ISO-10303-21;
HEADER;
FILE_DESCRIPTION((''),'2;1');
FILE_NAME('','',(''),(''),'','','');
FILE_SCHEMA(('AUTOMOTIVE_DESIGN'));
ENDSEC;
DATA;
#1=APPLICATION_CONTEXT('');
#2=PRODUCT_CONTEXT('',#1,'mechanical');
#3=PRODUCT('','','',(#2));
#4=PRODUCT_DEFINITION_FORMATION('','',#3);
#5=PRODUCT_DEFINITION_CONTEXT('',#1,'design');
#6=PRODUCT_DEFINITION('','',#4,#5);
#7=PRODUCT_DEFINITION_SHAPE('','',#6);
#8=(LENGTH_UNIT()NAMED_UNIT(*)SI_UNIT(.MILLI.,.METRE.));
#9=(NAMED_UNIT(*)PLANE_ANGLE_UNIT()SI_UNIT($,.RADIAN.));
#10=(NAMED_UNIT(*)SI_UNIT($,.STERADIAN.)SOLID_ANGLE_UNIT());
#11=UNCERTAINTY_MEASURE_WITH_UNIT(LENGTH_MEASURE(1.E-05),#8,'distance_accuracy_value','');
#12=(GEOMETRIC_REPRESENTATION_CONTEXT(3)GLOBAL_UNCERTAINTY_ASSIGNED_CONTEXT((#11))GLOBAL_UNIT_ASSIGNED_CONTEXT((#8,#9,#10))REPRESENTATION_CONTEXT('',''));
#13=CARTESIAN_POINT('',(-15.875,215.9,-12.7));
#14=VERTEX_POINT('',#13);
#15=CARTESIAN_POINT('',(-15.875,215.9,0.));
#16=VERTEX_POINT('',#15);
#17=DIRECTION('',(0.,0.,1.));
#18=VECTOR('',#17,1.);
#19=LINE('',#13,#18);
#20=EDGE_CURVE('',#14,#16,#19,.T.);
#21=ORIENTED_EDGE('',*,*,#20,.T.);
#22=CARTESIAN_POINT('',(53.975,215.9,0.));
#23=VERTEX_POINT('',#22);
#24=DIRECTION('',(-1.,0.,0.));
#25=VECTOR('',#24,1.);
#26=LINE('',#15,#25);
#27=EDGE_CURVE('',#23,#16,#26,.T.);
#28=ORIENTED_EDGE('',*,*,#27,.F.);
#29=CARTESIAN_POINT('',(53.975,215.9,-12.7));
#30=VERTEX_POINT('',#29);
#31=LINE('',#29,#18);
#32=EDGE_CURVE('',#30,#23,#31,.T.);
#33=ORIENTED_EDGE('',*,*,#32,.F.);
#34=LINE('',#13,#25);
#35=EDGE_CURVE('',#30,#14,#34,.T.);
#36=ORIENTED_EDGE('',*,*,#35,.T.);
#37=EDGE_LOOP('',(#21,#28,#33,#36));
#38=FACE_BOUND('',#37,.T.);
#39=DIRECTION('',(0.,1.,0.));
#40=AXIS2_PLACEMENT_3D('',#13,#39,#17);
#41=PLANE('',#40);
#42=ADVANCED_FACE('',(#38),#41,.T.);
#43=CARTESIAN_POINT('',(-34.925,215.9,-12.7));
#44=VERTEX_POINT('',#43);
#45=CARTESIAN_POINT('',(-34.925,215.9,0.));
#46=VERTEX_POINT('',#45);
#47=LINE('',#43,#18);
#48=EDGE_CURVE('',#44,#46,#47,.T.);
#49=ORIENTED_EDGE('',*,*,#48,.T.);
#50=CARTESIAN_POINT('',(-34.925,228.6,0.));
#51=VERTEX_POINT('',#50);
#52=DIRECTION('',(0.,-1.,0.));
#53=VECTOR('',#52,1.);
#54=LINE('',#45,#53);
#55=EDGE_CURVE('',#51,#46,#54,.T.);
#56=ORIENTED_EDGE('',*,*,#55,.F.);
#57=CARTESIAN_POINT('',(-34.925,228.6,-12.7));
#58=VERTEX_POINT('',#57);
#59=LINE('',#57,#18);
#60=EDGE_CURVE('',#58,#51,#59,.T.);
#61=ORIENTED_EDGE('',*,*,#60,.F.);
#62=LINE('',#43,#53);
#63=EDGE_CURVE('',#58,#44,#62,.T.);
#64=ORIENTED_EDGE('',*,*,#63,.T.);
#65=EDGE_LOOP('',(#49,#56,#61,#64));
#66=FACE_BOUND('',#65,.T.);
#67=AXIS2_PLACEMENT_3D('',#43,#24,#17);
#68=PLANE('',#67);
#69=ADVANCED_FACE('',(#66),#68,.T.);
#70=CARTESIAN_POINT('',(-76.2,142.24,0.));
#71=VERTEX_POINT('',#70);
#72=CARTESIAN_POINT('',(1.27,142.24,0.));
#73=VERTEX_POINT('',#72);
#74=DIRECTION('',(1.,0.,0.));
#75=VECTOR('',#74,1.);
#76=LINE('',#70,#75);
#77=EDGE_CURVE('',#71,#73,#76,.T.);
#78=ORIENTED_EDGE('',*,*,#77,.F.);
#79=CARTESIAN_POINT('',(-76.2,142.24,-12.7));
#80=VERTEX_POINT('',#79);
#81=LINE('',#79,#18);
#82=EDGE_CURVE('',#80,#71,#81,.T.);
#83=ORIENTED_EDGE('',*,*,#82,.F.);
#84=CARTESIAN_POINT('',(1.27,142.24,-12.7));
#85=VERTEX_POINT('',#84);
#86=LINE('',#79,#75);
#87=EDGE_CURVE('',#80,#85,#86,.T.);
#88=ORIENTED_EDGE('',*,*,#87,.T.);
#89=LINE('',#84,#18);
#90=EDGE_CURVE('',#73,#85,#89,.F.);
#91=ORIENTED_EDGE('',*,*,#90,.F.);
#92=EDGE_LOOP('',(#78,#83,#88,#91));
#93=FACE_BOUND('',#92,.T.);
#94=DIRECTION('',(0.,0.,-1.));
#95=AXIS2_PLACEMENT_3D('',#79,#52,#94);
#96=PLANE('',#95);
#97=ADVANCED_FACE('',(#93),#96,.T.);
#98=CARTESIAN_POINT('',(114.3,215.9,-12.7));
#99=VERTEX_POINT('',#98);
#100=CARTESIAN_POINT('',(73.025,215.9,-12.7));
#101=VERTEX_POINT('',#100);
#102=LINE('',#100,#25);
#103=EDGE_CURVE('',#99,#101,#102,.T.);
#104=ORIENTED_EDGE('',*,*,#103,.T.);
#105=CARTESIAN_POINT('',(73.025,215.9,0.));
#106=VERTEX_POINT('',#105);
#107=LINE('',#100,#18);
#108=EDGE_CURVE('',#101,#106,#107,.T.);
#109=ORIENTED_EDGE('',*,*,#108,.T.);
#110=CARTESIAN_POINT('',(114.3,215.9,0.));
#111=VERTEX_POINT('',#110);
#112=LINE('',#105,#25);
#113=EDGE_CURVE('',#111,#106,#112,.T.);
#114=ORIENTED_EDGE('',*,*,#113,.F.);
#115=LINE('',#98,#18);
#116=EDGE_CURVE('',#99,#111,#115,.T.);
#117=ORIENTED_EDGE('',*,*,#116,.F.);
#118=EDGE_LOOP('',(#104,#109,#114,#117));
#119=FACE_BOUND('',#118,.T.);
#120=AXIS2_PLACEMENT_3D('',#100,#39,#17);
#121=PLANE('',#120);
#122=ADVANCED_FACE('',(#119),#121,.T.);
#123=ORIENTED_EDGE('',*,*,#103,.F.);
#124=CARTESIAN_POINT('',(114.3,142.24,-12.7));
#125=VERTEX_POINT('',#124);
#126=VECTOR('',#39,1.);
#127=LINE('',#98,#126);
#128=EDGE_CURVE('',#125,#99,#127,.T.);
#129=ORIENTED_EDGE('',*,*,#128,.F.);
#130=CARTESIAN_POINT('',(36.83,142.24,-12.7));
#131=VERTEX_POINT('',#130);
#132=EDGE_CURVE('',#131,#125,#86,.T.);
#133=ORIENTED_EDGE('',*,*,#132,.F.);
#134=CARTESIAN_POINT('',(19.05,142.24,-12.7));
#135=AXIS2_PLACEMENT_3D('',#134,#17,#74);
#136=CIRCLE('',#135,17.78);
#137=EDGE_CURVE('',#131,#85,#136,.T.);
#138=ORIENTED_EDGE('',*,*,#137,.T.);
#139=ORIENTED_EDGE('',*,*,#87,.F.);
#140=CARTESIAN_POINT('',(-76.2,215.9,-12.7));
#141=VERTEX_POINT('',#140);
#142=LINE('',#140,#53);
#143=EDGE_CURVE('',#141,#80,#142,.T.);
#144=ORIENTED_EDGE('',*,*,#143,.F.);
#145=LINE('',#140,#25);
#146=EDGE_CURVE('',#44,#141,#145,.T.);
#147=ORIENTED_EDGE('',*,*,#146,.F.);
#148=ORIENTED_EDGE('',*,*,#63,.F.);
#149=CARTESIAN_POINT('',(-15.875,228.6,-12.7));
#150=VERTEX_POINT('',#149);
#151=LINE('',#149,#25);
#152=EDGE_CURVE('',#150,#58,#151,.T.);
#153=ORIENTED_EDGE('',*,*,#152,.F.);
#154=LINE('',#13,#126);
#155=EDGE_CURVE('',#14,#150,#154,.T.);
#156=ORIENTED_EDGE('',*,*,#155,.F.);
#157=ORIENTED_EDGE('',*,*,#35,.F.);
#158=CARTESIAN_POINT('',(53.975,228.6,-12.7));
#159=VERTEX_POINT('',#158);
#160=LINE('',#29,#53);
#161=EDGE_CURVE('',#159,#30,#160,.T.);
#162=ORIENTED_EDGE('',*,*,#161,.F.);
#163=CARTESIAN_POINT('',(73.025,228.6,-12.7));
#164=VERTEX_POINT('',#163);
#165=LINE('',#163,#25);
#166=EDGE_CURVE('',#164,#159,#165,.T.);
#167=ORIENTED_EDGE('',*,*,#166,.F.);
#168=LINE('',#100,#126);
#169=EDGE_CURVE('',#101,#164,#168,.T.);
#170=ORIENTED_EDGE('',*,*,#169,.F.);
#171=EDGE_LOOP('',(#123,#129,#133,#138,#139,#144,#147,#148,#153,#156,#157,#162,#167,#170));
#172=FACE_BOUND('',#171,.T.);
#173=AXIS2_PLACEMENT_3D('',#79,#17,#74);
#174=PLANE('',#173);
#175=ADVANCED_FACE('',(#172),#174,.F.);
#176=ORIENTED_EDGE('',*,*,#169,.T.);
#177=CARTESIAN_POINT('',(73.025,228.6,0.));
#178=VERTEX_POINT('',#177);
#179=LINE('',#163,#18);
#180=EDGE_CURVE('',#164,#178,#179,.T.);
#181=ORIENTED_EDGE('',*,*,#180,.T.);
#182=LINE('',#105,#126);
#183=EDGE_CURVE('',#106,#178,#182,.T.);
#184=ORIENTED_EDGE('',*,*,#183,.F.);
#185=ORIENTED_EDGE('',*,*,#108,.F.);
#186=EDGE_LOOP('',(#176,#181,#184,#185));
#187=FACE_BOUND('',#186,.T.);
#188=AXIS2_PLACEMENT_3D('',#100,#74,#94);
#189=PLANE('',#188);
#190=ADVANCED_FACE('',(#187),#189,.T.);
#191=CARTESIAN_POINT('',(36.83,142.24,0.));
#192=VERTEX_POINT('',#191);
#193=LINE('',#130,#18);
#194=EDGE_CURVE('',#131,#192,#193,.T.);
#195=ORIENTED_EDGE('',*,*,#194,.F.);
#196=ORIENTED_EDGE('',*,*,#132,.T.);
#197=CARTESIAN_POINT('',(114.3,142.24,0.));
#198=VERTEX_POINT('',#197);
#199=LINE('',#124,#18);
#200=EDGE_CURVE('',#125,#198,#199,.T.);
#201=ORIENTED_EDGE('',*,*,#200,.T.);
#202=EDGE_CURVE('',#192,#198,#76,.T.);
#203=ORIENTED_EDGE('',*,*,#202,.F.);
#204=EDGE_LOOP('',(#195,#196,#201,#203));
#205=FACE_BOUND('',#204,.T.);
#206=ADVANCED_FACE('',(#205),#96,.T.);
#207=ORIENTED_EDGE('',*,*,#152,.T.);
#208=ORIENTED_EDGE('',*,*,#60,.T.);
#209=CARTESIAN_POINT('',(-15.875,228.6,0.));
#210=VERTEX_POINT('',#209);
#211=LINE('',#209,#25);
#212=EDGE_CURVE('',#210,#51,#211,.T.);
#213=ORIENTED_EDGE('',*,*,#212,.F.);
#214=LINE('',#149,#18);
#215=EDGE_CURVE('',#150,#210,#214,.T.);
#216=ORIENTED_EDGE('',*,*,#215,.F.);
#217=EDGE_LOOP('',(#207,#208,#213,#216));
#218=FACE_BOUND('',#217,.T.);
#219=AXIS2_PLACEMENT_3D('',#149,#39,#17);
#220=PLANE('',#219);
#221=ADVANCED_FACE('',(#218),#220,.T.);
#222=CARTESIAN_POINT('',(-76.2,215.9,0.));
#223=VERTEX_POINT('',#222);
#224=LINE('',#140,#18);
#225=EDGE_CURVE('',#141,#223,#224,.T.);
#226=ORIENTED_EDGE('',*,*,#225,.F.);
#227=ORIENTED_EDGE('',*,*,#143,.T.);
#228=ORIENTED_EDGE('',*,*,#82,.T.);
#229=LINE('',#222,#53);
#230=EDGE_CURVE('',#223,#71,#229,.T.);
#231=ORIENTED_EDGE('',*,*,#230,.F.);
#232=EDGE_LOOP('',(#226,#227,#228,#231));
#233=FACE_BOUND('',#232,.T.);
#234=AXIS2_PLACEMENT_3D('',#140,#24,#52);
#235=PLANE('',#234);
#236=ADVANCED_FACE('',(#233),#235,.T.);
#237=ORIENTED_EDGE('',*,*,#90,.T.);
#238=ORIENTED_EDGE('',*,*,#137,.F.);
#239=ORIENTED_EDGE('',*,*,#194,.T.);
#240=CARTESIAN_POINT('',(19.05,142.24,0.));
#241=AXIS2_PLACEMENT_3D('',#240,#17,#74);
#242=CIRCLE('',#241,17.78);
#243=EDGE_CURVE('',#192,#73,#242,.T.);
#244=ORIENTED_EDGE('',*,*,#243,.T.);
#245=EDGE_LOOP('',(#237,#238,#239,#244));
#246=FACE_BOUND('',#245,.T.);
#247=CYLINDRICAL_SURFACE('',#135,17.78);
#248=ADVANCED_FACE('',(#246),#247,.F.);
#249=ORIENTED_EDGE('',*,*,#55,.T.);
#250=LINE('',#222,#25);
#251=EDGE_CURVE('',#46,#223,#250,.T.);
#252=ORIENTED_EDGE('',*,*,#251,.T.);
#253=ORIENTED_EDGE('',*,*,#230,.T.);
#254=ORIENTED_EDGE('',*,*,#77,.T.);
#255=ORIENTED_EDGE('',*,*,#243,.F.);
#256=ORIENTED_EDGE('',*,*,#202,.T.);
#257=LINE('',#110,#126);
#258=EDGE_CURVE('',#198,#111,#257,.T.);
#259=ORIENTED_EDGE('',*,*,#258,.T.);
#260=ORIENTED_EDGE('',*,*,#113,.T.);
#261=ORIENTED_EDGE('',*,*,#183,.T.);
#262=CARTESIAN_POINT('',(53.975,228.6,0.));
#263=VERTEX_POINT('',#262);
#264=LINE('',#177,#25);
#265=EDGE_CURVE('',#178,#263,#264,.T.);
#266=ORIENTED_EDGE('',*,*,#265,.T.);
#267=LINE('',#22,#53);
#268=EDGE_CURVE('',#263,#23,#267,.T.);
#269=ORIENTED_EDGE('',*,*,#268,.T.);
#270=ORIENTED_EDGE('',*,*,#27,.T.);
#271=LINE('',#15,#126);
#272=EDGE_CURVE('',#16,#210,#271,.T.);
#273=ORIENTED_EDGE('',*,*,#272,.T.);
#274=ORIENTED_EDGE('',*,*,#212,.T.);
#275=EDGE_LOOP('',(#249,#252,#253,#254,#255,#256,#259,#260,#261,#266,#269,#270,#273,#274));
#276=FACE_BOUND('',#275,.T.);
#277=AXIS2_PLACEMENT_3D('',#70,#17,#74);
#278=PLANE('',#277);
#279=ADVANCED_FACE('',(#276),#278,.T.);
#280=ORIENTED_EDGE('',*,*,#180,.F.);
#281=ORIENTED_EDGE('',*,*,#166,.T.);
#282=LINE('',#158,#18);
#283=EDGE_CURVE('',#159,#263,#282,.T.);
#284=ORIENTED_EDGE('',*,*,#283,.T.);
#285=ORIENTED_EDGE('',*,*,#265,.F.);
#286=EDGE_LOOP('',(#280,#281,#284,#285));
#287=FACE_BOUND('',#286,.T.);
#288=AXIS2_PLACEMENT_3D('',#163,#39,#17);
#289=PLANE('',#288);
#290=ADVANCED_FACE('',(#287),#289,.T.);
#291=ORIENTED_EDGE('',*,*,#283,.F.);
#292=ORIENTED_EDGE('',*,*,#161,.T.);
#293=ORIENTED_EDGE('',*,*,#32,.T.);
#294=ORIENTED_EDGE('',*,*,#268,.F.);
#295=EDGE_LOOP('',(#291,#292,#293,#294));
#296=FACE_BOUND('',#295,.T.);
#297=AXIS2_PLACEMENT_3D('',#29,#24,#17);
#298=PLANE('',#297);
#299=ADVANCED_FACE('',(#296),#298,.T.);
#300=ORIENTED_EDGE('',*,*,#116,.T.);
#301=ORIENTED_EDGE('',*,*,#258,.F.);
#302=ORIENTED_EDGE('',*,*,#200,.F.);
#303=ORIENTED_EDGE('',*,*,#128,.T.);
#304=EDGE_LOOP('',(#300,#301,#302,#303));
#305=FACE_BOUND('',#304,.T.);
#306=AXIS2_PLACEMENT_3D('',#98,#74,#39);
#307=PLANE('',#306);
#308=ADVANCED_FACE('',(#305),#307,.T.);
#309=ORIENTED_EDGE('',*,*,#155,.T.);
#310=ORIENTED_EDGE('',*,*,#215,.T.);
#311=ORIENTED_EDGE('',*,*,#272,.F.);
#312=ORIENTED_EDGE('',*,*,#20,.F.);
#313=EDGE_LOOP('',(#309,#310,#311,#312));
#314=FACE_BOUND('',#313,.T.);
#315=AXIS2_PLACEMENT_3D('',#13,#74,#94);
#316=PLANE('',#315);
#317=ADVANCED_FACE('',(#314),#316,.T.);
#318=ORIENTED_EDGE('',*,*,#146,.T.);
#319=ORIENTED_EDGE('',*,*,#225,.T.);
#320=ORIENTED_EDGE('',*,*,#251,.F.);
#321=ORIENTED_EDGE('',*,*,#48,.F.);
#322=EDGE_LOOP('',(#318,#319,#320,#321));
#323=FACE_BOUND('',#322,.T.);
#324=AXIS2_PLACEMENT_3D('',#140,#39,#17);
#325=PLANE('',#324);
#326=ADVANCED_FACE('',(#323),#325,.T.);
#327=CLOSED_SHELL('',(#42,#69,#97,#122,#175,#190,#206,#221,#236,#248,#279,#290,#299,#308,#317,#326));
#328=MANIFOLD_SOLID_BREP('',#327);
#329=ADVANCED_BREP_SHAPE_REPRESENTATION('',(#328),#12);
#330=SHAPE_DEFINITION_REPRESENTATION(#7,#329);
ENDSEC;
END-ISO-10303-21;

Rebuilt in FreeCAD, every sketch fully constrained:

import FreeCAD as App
import Part
import Sketcher

V = App.Vector
Q = App.Units.Quantity

doc = App.newDocument("Part")
body = doc.addObject("PartDesign::Body", "Body")

sketch1 = doc.addObject("Sketcher::SketchObject", "Sketch")
body.addObject(sketch1)
sketch1.AttachmentSupport = (doc.XY_Plane, [""])
sketch1.MapMode = "FlatFace"
sketch1.addGeometry([
    Part.LineSegment(V(-35, 216, 0), V(-76, 216, 0)),
    Part.LineSegment(V(-76, 216, 0), V(-76, 142, 0)),
    Part.LineSegment(V(-76, 142, 0), V(114, 142, 0)),
    Part.LineSegment(V(114, 142, 0), V(114, 216, 0)),
    Part.LineSegment(V(114, 216, 0), V(73, 216, 0)),
    Part.LineSegment(V(73, 216, 0), V(73, 229, 0)),
    Part.LineSegment(V(73, 229, 0), V(54, 229, 0)),
    Part.LineSegment(V(54, 229, 0), V(54, 216, 0)),
    Part.LineSegment(V(54, 216, 0), V(-16, 216, 0)),
    Part.LineSegment(V(-16, 216, 0), V(-16, 229, 0)),
    Part.LineSegment(V(-16, 229, 0), V(-35, 229, 0)),
    Part.LineSegment(V(-35, 229, 0), V(-35, 216, 0)),
], False)
sketch1.addConstraint([
    Sketcher.Constraint("Coincident", 0, 2, 1, 1),
    Sketcher.Constraint("Coincident", 1, 2, 2, 1),
    Sketcher.Constraint("Coincident", 2, 2, 3, 1),
    Sketcher.Constraint("Coincident", 3, 2, 4, 1),
    Sketcher.Constraint("Coincident", 4, 2, 5, 1),
    Sketcher.Constraint("Coincident", 5, 2, 6, 1),
    Sketcher.Constraint("Coincident", 6, 2, 7, 1),
    Sketcher.Constraint("Coincident", 7, 2, 8, 1),
    Sketcher.Constraint("Coincident", 8, 2, 9, 1),
    Sketcher.Constraint("Coincident", 9, 2, 10, 1),
    Sketcher.Constraint("Coincident", 10, 2, 11, 1),
    Sketcher.Constraint("Coincident", 11, 2, 0, 1),
    Sketcher.Constraint("Horizontal", 0),
    Sketcher.Constraint("Vertical", 1),
    Sketcher.Constraint("Horizontal", 2),
    Sketcher.Constraint("Vertical", 3),
    Sketcher.Constraint("Horizontal", 4),
    Sketcher.Constraint("Vertical", 5),
    Sketcher.Constraint("Horizontal", 6),
    Sketcher.Constraint("Vertical", 7),
    Sketcher.Constraint("Horizontal", 8),
    Sketcher.Constraint("Vertical", 9),
    Sketcher.Constraint("Horizontal", 10),
    Sketcher.Constraint("Vertical", 11),
    Sketcher.Constraint("Horizontal", 0, 2, 3, 2),
    Sketcher.Constraint("Horizontal", 4, 2, 7, 2),
    Sketcher.Constraint("Horizontal", 6, 2, 9, 2),
    Sketcher.Constraint("Equal", 0, 4),
    Sketcher.Constraint("Equal", 6, 10),
    Sketcher.Constraint("DistanceX", 2, 1, 2, 2, Q("7.5 in")),
    Sketcher.Constraint("DistanceY", 1, 2, 1, 1, Q("2.9 in")),
    Sketcher.Constraint("DistanceY", 5, 1, 5, 2, Q("0.5 in")),
    Sketcher.Constraint("DistanceX", 0, 2, -1, 1, Q("3 in")),
    Sketcher.Constraint("DistanceY", -1, 1, 5, 2, Q("9 in")),
    Sketcher.Constraint("DistanceX", 6, 2, 6, 1, Q("0.75 in")),
    Sketcher.Constraint("DistanceX", 8, 2, 8, 1, Q("2.75 in")),
])
pad1 = doc.addObject("PartDesign::Pad", "Pad")
body.addObject(pad1)
pad1.Profile = sketch1
pad1.Length = Q("0.5 in")
pad1.Reversed = True

sketch2 = doc.addObject("Sketcher::SketchObject", "Sketch001")
body.addObject(sketch2)
sketch2.AttachmentSupport = (doc.XY_Plane, [""])
sketch2.MapMode = "FlatFace"
sketch2.addGeometry(Part.Circle(V(19, 142, 0), V(0, 0, 1), 18), False)
sketch2.addConstraint([
    Sketcher.Constraint("Diameter", 0, Q("1.4 in")),
    Sketcher.Constraint("DistanceY", -1, 1, 0, 3, Q("5.6 in")),
    Sketcher.Constraint("DistanceX", -1, 1, 0, 3, Q("0.75 in")),
])
pocket1 = doc.addObject("PartDesign::Pocket", "Pocket")
body.addObject(pocket1)
pocket1.Profile = sketch2
pocket1.Type = "ThroughAll"

doc.recompute()
